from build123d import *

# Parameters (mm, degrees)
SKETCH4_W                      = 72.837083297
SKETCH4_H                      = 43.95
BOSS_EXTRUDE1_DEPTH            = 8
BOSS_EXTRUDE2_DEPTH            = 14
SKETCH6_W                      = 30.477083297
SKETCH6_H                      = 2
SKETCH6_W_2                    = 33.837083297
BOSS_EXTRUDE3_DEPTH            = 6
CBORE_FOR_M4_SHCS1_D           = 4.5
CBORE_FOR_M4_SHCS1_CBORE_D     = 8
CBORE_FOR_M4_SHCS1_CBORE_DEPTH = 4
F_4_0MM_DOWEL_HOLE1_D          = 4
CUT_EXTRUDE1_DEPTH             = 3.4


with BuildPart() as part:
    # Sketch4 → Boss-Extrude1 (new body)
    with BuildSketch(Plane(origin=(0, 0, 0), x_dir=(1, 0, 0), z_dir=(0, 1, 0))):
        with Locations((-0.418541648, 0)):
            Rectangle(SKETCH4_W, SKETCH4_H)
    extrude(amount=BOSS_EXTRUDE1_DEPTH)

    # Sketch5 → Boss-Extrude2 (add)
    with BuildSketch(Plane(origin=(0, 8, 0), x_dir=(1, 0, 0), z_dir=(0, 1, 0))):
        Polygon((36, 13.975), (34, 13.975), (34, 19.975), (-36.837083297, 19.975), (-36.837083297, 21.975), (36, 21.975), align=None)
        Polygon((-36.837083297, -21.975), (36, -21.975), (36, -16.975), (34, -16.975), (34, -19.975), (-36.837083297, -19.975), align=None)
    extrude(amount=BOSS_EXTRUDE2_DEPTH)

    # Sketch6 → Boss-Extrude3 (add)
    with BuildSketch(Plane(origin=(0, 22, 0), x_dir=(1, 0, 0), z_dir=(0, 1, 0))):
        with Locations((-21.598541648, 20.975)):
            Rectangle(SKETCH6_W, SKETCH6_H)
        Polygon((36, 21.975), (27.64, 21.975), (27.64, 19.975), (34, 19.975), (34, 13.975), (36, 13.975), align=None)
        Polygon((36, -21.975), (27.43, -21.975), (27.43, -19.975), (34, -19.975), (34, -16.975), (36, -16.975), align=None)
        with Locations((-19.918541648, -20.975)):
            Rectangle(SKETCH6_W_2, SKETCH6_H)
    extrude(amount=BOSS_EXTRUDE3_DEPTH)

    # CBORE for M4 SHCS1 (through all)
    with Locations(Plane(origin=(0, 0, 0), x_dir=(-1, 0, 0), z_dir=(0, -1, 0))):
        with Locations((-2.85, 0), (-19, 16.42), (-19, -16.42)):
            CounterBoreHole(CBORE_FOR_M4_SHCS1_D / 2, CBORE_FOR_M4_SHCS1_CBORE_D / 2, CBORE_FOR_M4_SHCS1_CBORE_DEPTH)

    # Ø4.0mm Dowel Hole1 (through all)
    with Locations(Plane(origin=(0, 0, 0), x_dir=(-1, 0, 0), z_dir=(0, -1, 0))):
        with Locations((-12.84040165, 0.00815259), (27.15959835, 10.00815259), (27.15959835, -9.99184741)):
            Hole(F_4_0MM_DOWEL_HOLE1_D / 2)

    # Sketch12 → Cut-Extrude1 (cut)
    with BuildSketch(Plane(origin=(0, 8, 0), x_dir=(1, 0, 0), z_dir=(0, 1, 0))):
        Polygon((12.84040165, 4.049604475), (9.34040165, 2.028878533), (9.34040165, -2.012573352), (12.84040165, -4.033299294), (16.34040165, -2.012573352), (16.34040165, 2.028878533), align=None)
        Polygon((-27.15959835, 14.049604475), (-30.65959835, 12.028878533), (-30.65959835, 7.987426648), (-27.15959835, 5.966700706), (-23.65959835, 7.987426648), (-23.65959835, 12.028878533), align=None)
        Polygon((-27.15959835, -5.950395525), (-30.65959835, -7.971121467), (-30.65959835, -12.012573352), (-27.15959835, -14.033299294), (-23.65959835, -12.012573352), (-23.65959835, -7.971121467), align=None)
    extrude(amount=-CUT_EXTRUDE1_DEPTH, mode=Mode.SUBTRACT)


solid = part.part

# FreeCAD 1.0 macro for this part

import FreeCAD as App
import Part
import Sketcher
from FreeCAD import Vector
Q = App.Units.Quantity


def add_polygon(sketch, points):
    """Adds a closed chain of lines whose ends are joined by coincident constraints."""
    first, n = sketch.GeometryCount, len(points)
    for a, b in zip(points, points[1:] + points[:1]):
        sketch.addGeometry(Part.LineSegment(App.Vector(*a, 0), App.Vector(*b, 0)), False)
    for i in range(n):
        sketch.addConstraint(Sketcher.Constraint("Coincident", first + i, 2, first + (i + 1) % n, 1))

doc = App.newDocument("Part")
params = doc.addObject("Spreadsheet::Sheet", "Params")
for row, (alias, value) in enumerate([
    ("sketch1_height", "43.95 mm"),
    ("pad1_length", "8 mm"),
    ("sketch2_width", "2 mm"),
    ("sketch2_height", "8 mm"),
    ("sketch2_height2", "5 mm"),
    ("pad2_length", "14 mm"),
    ("sketch3_width", "2 mm"),
    ("sketch3_height", "6 mm"),
    ("sketch3_height2", "5 mm"),
    ("sketch3_width2", "8.36 mm"),
    ("sketch3_width3", "8.57 mm"),
    ("pad3_length", "6 mm"),
    ("sketch4_diameter", "4.5 mm"),
    ("hole_diameter", "4.5 mm"),
    ("hole_cbore_diameter", "8 mm"),
    ("hole_cbore_depth", "4 mm"),
    ("sketch5_diameter", "4 mm"),
    ("hole2_diameter", "4 mm"),
    ("pocket1_length", "3.4 mm"),
], start=1):
    params.set(f"A{row}", alias)
    params.set(f"B{row}", "=" + value)
    params.setAlias(f"B{row}", alias)

body = doc.addObject("PartDesign::Body", "Body")

sketch1 = body.newObject("Sketcher::SketchObject", "Sketch")
sketch1.AttachmentSupport = (doc.getObject("XZ_Plane"), [""])
sketch1.MapMode = "FlatFace"
add_polygon(sketch1, [(-37, -22), (-37, 22), (36, 22), (36, -22)])
sketch1.addConstraint(Sketcher.Constraint("Vertical", 0))
sketch1.addConstraint(Sketcher.Constraint("Horizontal", 1))
sketch1.addConstraint(Sketcher.Constraint("Vertical", 2))
sketch1.addConstraint(Sketcher.Constraint("Horizontal", 3))
sketch1.addConstraint(Sketcher.Constraint("DistanceX", -1, 1, 1, 2, Q("36 mm")))
sketch1.addConstraint(Sketcher.Constraint("DistanceY", 0, 1, 0, 2, Q("43.95 mm")))
sketch1.addConstraint(Sketcher.Constraint("DistanceY", -1, 1, 0, 2, Q("21.975 mm")))
sketch1.addConstraint(Sketcher.Constraint("DistanceX", 1, 1, 1, 2, Q("72.837083 mm")))
sketch1.setExpression("Constraints[9]", "Params.sketch1_height")
pad1 = body.newObject("PartDesign::Pad", "Pad")
pad1.Profile = sketch1
pad1.setExpression("Length", "Params.pad1_length")
pad1.Reversed = True

sketch2 = body.newObject("Sketcher::SketchObject", "Sketch001")
sketch2.AttachmentSupport = (doc.getObject("XZ_Plane"), [""])
sketch2.MapMode = "FlatFace"
sketch2.AttachmentOffset = App.Placement(Vector(0, 0, -8), App.Rotation())
add_polygon(sketch2, [(34, -14), (36, -14), (36, -22), (-36.8, -22), (-36.8, -20), (34, -20)])
add_polygon(sketch2, [(-36.8, 22), (36, 22), (36, 17), (34, 17), (34, 20), (-36.8, 20)])
sketch2.addConstraint(Sketcher.Constraint("Horizontal", 0))
sketch2.addConstraint(Sketcher.Constraint("Vertical", 1))
sketch2.addConstraint(Sketcher.Constraint("Horizontal", 2))
sketch2.addConstraint(Sketcher.Constraint("Vertical", 3))
sketch2.addConstraint(Sketcher.Constraint("Horizontal", 4))
sketch2.addConstraint(Sketcher.Constraint("Vertical", 5))
sketch2.addConstraint(Sketcher.Constraint("Horizontal", 6))
sketch2.addConstraint(Sketcher.Constraint("Vertical", 7))
sketch2.addConstraint(Sketcher.Constraint("Horizontal", 8))
sketch2.addConstraint(Sketcher.Constraint("Vertical", 9))
sketch2.addConstraint(Sketcher.Constraint("Horizontal", 10))
sketch2.addConstraint(Sketcher.Constraint("Vertical", 11))
sketch2.addConstraint(Sketcher.Constraint("Symmetric", 1, 2, 6, 2, -1))
sketch2.addConstraint(Sketcher.Constraint("Symmetric", 4, 2, 9, 2, -1))
sketch2.addConstraint(Sketcher.Constraint("Vertical", 3, 2, 10, 2))
sketch2.addConstraint(Sketcher.Constraint("Equal", 8, 3))
sketch2.addConstraint(Sketcher.Constraint("DistanceX", 0, 1, 0, 2, Q("2 mm")))
sketch2.addConstraint(Sketcher.Constraint("DistanceY", 1, 2, 1, 1, Q("8 mm")))
sketch2.addConstraint(Sketcher.Constraint("DistanceY", 7, 2, 7, 1, Q("5 mm")))
sketch2.addConstraint(Sketcher.Constraint("DistanceX", -1, 1, 0, 2, Q("36 mm")))
sketch2.addConstraint(Sketcher.Constraint("DistanceY", 0, 2, 6, 2, Q("35.95 mm")))
sketch2.addConstraint(Sketcher.Constraint("DistanceX", 2, 2, 2, 1, Q("72.837083 mm")))
sketch2.setExpression("Constraints[28]", "Params.sketch2_width")
sketch2.setExpression("Constraints[29]", "Params.sketch2_height")
sketch2.setExpression("Constraints[30]", "Params.sketch2_height2")
pad2 = body.newObject("PartDesign::Pad", "Pad001")
pad2.Profile = sketch2
pad2.setExpression("Length", "Params.pad2_length")
pad2.Reversed = True

sketch3 = body.newObject("Sketcher::SketchObject", "Sketch002")
sketch3.AttachmentSupport = (doc.getObject("XZ_Plane"), [""])
sketch3.MapMode = "FlatFace"
sketch3.AttachmentOffset = App.Placement(Vector(0, 0, -22), App.Rotation())
add_polygon(sketch3, [(-36.8, -22), (-36.8, -20), (-6.4, -20), (-6.4, -22)])
add_polygon(sketch3, [(36, -22), (27.6, -22), (27.6, -20), (34, -20), (34, -14), (36, -14)])
add_polygon(sketch3, [(27.4, 22), (36, 22), (36, 17), (34, 17), (34, 20), (27.4, 20)])
add_polygon(sketch3, [(-36.8, 20), (-36.8, 22), (-3, 22), (-3, 20)])
sketch3.addConstraint(Sketcher.Constraint("Vertical", 0))
sketch3.addConstraint(Sketcher.Constraint("Horizontal", 1))
sketch3.addConstraint(Sketcher.Constraint("Vertical", 2))
sketch3.addConstraint(Sketcher.Constraint("Horizontal", 3))
sketch3.addConstraint(Sketcher.Constraint("Horizontal", 4))
sketch3.addConstraint(Sketcher.Constraint("Vertical", 5))
sketch3.addConstraint(Sketcher.Constraint("Horizontal", 6))
sketch3.addConstraint(Sketcher.Constraint("Vertical", 7))
sketch3.addConstraint(Sketcher.Constraint("Horizontal", 8))
sketch3.addConstraint(Sketcher.Constraint("Vertical", 9))
sketch3.addConstraint(Sketcher.Constraint("Horizontal", 10))
sketch3.addConstraint(Sketcher.Constraint("Vertical", 11))
sketch3.addConstraint(Sketcher.Constraint("Horizontal", 12))
sketch3.addConstraint(Sketcher.Constraint("Vertical", 13))
sketch3.addConstraint(Sketcher.Constraint("Horizontal", 14))
sketch3.addConstraint(Sketcher.Constraint("Vertical", 15))
sketch3.addConstraint(Sketcher.Constraint("Vertical", 16))
sketch3.addConstraint(Sketcher.Constraint("Horizontal", 17))
sketch3.addConstraint(Sketcher.Constraint("Vertical", 18))
sketch3.addConstraint(Sketcher.Constraint("Horizontal", 19))
sketch3.addConstraint(Sketcher.Constraint("Symmetric", 9, 2, 10, 2, -1))
sketch3.addConstraint(Sketcher.Constraint("Symmetric", 6, 2, 13, 2, -1))
sketch3.addConstraint(Sketcher.Constraint("Symmetric", 3, 2, 16, 2, -1))
sketch3.addConstraint(Sketcher.Constraint("Horizontal", 3, 2, 4, 2))
sketch3.addConstraint(Sketcher.Constraint("Horizontal", 1, 2, 5, 2))
sketch3.addConstraint(Sketcher.Constraint("Horizontal", 14, 2, 18, 2))
sketch3.addConstraint(Sketcher.Constraint("Equal", 12, 0))
sketch3.addConstraint(Sketcher.Constraint("DistanceX", 8, 1, 8, 2, Q("2 mm")))
sketch3.addConstraint(Sketcher.Constraint("DistanceY", 7, 1, 7, 2, Q("6 mm")))
sketch3.addConstraint(Sketcher.Constraint("DistanceY", 11, 2, 11, 1, Q("5 mm")))
sketch3.addConstraint(Sketcher.Constraint("DistanceX", -1, 1, 6, 2, Q("34 mm")))
sketch3.addConstraint(Sketcher.Constraint("DistanceX", 17, 2, -1, 1, Q("3 mm")))
sketch3.addConstraint(Sketcher.Constraint("DistanceX", 2, 2, 4, 2, Q("34 mm")))
sketch3.addConstraint(Sketcher.Constraint("DistanceX", 4, 2, 4, 1, Q("8.36 mm")))
sketch3.addConstraint(Sketcher.Constraint("DistanceX", 10, 1, 10, 2, Q("8.57 mm")))
sketch3.addConstraint(Sketcher.Constraint("DistanceY", 8, 2, 10, 2, Q("35.95 mm")))
sketch3.addConstraint(Sketcher.Constraint("DistanceX", 1, 1, 1, 2, Q("30.477083 mm")))
sketch3.setExpression("Constraints[47]", "Params.sketch3_width")
sketch3.setExpression("Constraints[48]", "Params.sketch3_height")
sketch3.setExpression("Constraints[49]", "Params.sketch3_height2")
sketch3.setExpression("Constraints[53]", "Params.sketch3_width2")
sketch3.setExpression("Constraints[54]", "Params.sketch3_width3")
pad3 = body.newObject("PartDesign::Pad", "Pad002")
pad3.Profile = sketch3
pad3.setExpression("Length", "Params.pad3_length")
pad3.Reversed = True

sketch4 = body.newObject("Sketcher::SketchObject", "Sketch003")
sketch4.AttachmentSupport = (doc.getObject("XZ_Plane"), [""])
sketch4.MapMode = "FlatFace"
sketch4.addGeometry(Part.Circle(Vector(2.9, 0, 0), Vector(0, 0, 1), 2.2), False)
sketch4.addGeometry(Part.Circle(Vector(19, -16.4, 0), Vector(0, 0, 1), 2.2), False)
sketch4.addGeometry(Part.Circle(Vector(19, 16.4, 0), Vector(0, 0, 1), 2.2), False)
sketch4.addConstraint(Sketcher.Constraint("Equal", 0, 1))
sketch4.addConstraint(Sketcher.Constraint("Equal", 1, 2))
sketch4.addConstraint(Sketcher.Constraint("Symmetric", 1, 3, 2, 3, -1))
sketch4.addConstraint(Sketcher.Constraint("PointOnObject", 0, 3, -1))
sketch4.addConstraint(Sketcher.Constraint("Diameter", 0, Q("4.5 mm")))
sketch4.addConstraint(Sketcher.Constraint("DistanceX", -1, 1, 1, 3, Q("19 mm")))
sketch4.addConstraint(Sketcher.Constraint("DistanceX", -1, 1, 0, 3, Q("2.85 mm")))
sketch4.addConstraint(Sketcher.Constraint("DistanceY", 1, 3, -1, 1, Q("16.42 mm")))
sketch4.setExpression("Constraints[4]", "Params.sketch4_diameter")
doc.recompute()
hole = body.newObject("PartDesign::Hole", "Hole")
hole.Profile = sketch4
hole.ThreadType = "None"
hole.setExpression("Diameter", "Params.hole_diameter")
hole.DepthType = "ThroughAll"
hole.HoleCutType = "Counterbore"
hole.setExpression("HoleCutDiameter", "Params.hole_cbore_diameter")
hole.setExpression("HoleCutDepth", "Params.hole_cbore_depth")

sketch5 = body.newObject("Sketcher::SketchObject", "Sketch004")
sketch5.AttachmentSupport = (doc.getObject("XZ_Plane"), [""])
sketch5.MapMode = "FlatFace"
sketch5.addGeometry(Part.Circle(Vector(12.8, 0, 0), Vector(0, 0, 1), 2), False)
sketch5.addGeometry(Part.Circle(Vector(-27.2, -10, 0), Vector(0, 0, 1), 2), False)
sketch5.addGeometry(Part.Circle(Vector(-27.2, 10, 0), Vector(0, 0, 1), 2), False)
sketch5.addConstraint(Sketcher.Constraint("Equal", 0, 1))
sketch5.addConstraint(Sketcher.Constraint("Equal", 1, 2))
sketch5.addConstraint(Sketcher.Constraint("Vertical", 1, 3, 2, 3))
sketch5.addConstraint(Sketcher.Constraint("Diameter", 0, Q("4 mm")))
sketch5.addConstraint(Sketcher.Constraint("DistanceX", 1, 3, 0, 3, Q("40 mm")))
sketch5.addConstraint(Sketcher.Constraint("DistanceY", 1, 3, 0, 3, Q("10 mm")))
sketch5.addConstraint(Sketcher.Constraint("DistanceY", 1, 3, 2, 3, Q("20 mm")))
sketch5.addConstraint(Sketcher.Constraint("DistanceX", -1, 1, 0, 3, Q("12.840402 mm")))
sketch5.addConstraint(Sketcher.Constraint("DistanceY", 0, 3, -1, 1, Q("0.008153 mm")))
sketch5.setExpression("Constraints[3]", "Params.sketch5_diameter")
doc.recompute()
hole2 = body.newObject("PartDesign::Hole", "Hole001")
hole2.Profile = sketch5
hole2.ThreadType = "None"
hole2.setExpression("Diameter", "Params.hole2_diameter")
hole2.DepthType = "ThroughAll"

sketch6 = body.newObject("Sketcher::SketchObject", "Sketch005")
sketch6.AttachmentSupport = (doc.getObject("XZ_Plane"), [""])
sketch6.MapMode = "FlatFace"
sketch6.AttachmentOffset = App.Placement(Vector(0, 0, -8), App.Rotation())
add_polygon(sketch6, [(12.8, -4), (9.3, -2), (9.3, 2), (12.8, 4), (16.3, 2), (16.3, -2)])
add_polygon(sketch6, [(-27.2, -14), (-30.7, -12), (-30.7, -8), (-27.2, -6), (-23.7, -8), (-23.7, -12)])
add_polygon(sketch6, [(-27.2, 6), (-30.7, 8), (-30.7, 12), (-27.2, 14), (-23.7, 12), (-23.7, 8)])
sketch6.addConstraint(Sketcher.Constraint("Vertical", 1))
sketch6.addConstraint(Sketcher.Constraint("Vertical", 4))
sketch6.addConstraint(Sketcher.Constraint("Vertical", 7))
sketch6.addConstraint(Sketcher.Constraint("Vertical", 10))
sketch6.addConstraint(Sketcher.Constraint("Vertical", 13))
sketch6.addConstraint(Sketcher.Constraint("Vertical", 16))
sketch6.addConstraint(Sketcher.Constraint("Parallel", 0, 3))
sketch6.addConstraint(Sketcher.Constraint("Parallel", 2, 5))
sketch6.addConstraint(Sketcher.Constraint("Parallel", 3, 6))
sketch6.addConstraint(Sketcher.Constraint("Parallel", 5, 8))
sketch6.addConstraint(Sketcher.Constraint("Parallel", 6, 9))
sketch6.addConstraint(Sketcher.Constraint("Parallel", 8, 11))
sketch6.addConstraint(Sketcher.Constraint("Parallel", 9, 12))
sketch6.addConstraint(Sketcher.Constraint("Parallel", 11, 14))
sketch6.addConstraint(Sketcher.Constraint("Parallel", 12, 15))
sketch6.addConstraint(Sketcher.Constraint("Parallel", 14, 17))
sketch6.addConstraint(Sketcher.Constraint("Horizontal", 1, 2, 3, 2))
sketch6.addConstraint(Sketcher.Constraint("Horizontal", 0, 2, 4, 2))
sketch6.addConstraint(Sketcher.Constraint("Horizontal", 7, 2, 9, 2))
sketch6.addConstraint(Sketcher.Constraint("Horizontal", 6, 2, 10, 2))
sketch6.addConstraint(Sketcher.Constraint("Horizontal", 13, 2, 15, 2))
sketch6.addConstraint(Sketcher.Constraint("Horizontal", 12, 2, 16, 2))
sketch6.addConstraint(Sketcher.Constraint("Vertical", 2, 2, 5, 2))
sketch6.addConstraint(Sketcher.Constraint("Vertical", 7, 2, 12, 2))
sketch6.addConstraint(Sketcher.Constraint("Vertical", 11, 2, 14, 2))
sketch6.addConstraint(Sketcher.Constraint("Equal", 4, 7))
sketch6.addConstraint(Sketcher.Constraint("Equal", 10, 13))
sketch6.addConstraint(Sketcher.Constraint("Equal", 5, 6))
sketch6.addConstraint(Sketcher.Constraint("Angle", 0, Q("150 deg")))
sketch6.addConstraint(Sketcher.Constraint("DistanceX", 1, 2, 3, 2, Q("7 mm")))
sketch6.addConstraint(Sketcher.Constraint("DistanceX", 6, 2, 0, 2, Q("40 mm")))
sketch6.addConstraint(Sketcher.Constraint("DistanceY", 6, 2, 0, 2, Q("10 mm")))
sketch6.addConstraint(Sketcher.Constraint("DistanceY", 6, 2, 12, 2, Q("20 mm")))
sketch6.addConstraint(Sketcher.Constraint("DistanceY", 1, 1, 1, 2, Q("4.041452 mm")))
sketch6.addConstraint(Sketcher.Constraint("DistanceX", -1, 1, 0, 2, Q("9.340402 mm")))
sketch6.addConstraint(Sketcher.Constraint("DistanceY", -1, 1, 2, 2, Q("4.033299 mm")))
pocket1 = body.newObject("PartDesign::Pocket", "Pocket")
pocket1.Profile = sketch6
pocket1.setExpression("Length", "Params.pocket1_length")
pocket1.Reversed = True

doc.recompute()
